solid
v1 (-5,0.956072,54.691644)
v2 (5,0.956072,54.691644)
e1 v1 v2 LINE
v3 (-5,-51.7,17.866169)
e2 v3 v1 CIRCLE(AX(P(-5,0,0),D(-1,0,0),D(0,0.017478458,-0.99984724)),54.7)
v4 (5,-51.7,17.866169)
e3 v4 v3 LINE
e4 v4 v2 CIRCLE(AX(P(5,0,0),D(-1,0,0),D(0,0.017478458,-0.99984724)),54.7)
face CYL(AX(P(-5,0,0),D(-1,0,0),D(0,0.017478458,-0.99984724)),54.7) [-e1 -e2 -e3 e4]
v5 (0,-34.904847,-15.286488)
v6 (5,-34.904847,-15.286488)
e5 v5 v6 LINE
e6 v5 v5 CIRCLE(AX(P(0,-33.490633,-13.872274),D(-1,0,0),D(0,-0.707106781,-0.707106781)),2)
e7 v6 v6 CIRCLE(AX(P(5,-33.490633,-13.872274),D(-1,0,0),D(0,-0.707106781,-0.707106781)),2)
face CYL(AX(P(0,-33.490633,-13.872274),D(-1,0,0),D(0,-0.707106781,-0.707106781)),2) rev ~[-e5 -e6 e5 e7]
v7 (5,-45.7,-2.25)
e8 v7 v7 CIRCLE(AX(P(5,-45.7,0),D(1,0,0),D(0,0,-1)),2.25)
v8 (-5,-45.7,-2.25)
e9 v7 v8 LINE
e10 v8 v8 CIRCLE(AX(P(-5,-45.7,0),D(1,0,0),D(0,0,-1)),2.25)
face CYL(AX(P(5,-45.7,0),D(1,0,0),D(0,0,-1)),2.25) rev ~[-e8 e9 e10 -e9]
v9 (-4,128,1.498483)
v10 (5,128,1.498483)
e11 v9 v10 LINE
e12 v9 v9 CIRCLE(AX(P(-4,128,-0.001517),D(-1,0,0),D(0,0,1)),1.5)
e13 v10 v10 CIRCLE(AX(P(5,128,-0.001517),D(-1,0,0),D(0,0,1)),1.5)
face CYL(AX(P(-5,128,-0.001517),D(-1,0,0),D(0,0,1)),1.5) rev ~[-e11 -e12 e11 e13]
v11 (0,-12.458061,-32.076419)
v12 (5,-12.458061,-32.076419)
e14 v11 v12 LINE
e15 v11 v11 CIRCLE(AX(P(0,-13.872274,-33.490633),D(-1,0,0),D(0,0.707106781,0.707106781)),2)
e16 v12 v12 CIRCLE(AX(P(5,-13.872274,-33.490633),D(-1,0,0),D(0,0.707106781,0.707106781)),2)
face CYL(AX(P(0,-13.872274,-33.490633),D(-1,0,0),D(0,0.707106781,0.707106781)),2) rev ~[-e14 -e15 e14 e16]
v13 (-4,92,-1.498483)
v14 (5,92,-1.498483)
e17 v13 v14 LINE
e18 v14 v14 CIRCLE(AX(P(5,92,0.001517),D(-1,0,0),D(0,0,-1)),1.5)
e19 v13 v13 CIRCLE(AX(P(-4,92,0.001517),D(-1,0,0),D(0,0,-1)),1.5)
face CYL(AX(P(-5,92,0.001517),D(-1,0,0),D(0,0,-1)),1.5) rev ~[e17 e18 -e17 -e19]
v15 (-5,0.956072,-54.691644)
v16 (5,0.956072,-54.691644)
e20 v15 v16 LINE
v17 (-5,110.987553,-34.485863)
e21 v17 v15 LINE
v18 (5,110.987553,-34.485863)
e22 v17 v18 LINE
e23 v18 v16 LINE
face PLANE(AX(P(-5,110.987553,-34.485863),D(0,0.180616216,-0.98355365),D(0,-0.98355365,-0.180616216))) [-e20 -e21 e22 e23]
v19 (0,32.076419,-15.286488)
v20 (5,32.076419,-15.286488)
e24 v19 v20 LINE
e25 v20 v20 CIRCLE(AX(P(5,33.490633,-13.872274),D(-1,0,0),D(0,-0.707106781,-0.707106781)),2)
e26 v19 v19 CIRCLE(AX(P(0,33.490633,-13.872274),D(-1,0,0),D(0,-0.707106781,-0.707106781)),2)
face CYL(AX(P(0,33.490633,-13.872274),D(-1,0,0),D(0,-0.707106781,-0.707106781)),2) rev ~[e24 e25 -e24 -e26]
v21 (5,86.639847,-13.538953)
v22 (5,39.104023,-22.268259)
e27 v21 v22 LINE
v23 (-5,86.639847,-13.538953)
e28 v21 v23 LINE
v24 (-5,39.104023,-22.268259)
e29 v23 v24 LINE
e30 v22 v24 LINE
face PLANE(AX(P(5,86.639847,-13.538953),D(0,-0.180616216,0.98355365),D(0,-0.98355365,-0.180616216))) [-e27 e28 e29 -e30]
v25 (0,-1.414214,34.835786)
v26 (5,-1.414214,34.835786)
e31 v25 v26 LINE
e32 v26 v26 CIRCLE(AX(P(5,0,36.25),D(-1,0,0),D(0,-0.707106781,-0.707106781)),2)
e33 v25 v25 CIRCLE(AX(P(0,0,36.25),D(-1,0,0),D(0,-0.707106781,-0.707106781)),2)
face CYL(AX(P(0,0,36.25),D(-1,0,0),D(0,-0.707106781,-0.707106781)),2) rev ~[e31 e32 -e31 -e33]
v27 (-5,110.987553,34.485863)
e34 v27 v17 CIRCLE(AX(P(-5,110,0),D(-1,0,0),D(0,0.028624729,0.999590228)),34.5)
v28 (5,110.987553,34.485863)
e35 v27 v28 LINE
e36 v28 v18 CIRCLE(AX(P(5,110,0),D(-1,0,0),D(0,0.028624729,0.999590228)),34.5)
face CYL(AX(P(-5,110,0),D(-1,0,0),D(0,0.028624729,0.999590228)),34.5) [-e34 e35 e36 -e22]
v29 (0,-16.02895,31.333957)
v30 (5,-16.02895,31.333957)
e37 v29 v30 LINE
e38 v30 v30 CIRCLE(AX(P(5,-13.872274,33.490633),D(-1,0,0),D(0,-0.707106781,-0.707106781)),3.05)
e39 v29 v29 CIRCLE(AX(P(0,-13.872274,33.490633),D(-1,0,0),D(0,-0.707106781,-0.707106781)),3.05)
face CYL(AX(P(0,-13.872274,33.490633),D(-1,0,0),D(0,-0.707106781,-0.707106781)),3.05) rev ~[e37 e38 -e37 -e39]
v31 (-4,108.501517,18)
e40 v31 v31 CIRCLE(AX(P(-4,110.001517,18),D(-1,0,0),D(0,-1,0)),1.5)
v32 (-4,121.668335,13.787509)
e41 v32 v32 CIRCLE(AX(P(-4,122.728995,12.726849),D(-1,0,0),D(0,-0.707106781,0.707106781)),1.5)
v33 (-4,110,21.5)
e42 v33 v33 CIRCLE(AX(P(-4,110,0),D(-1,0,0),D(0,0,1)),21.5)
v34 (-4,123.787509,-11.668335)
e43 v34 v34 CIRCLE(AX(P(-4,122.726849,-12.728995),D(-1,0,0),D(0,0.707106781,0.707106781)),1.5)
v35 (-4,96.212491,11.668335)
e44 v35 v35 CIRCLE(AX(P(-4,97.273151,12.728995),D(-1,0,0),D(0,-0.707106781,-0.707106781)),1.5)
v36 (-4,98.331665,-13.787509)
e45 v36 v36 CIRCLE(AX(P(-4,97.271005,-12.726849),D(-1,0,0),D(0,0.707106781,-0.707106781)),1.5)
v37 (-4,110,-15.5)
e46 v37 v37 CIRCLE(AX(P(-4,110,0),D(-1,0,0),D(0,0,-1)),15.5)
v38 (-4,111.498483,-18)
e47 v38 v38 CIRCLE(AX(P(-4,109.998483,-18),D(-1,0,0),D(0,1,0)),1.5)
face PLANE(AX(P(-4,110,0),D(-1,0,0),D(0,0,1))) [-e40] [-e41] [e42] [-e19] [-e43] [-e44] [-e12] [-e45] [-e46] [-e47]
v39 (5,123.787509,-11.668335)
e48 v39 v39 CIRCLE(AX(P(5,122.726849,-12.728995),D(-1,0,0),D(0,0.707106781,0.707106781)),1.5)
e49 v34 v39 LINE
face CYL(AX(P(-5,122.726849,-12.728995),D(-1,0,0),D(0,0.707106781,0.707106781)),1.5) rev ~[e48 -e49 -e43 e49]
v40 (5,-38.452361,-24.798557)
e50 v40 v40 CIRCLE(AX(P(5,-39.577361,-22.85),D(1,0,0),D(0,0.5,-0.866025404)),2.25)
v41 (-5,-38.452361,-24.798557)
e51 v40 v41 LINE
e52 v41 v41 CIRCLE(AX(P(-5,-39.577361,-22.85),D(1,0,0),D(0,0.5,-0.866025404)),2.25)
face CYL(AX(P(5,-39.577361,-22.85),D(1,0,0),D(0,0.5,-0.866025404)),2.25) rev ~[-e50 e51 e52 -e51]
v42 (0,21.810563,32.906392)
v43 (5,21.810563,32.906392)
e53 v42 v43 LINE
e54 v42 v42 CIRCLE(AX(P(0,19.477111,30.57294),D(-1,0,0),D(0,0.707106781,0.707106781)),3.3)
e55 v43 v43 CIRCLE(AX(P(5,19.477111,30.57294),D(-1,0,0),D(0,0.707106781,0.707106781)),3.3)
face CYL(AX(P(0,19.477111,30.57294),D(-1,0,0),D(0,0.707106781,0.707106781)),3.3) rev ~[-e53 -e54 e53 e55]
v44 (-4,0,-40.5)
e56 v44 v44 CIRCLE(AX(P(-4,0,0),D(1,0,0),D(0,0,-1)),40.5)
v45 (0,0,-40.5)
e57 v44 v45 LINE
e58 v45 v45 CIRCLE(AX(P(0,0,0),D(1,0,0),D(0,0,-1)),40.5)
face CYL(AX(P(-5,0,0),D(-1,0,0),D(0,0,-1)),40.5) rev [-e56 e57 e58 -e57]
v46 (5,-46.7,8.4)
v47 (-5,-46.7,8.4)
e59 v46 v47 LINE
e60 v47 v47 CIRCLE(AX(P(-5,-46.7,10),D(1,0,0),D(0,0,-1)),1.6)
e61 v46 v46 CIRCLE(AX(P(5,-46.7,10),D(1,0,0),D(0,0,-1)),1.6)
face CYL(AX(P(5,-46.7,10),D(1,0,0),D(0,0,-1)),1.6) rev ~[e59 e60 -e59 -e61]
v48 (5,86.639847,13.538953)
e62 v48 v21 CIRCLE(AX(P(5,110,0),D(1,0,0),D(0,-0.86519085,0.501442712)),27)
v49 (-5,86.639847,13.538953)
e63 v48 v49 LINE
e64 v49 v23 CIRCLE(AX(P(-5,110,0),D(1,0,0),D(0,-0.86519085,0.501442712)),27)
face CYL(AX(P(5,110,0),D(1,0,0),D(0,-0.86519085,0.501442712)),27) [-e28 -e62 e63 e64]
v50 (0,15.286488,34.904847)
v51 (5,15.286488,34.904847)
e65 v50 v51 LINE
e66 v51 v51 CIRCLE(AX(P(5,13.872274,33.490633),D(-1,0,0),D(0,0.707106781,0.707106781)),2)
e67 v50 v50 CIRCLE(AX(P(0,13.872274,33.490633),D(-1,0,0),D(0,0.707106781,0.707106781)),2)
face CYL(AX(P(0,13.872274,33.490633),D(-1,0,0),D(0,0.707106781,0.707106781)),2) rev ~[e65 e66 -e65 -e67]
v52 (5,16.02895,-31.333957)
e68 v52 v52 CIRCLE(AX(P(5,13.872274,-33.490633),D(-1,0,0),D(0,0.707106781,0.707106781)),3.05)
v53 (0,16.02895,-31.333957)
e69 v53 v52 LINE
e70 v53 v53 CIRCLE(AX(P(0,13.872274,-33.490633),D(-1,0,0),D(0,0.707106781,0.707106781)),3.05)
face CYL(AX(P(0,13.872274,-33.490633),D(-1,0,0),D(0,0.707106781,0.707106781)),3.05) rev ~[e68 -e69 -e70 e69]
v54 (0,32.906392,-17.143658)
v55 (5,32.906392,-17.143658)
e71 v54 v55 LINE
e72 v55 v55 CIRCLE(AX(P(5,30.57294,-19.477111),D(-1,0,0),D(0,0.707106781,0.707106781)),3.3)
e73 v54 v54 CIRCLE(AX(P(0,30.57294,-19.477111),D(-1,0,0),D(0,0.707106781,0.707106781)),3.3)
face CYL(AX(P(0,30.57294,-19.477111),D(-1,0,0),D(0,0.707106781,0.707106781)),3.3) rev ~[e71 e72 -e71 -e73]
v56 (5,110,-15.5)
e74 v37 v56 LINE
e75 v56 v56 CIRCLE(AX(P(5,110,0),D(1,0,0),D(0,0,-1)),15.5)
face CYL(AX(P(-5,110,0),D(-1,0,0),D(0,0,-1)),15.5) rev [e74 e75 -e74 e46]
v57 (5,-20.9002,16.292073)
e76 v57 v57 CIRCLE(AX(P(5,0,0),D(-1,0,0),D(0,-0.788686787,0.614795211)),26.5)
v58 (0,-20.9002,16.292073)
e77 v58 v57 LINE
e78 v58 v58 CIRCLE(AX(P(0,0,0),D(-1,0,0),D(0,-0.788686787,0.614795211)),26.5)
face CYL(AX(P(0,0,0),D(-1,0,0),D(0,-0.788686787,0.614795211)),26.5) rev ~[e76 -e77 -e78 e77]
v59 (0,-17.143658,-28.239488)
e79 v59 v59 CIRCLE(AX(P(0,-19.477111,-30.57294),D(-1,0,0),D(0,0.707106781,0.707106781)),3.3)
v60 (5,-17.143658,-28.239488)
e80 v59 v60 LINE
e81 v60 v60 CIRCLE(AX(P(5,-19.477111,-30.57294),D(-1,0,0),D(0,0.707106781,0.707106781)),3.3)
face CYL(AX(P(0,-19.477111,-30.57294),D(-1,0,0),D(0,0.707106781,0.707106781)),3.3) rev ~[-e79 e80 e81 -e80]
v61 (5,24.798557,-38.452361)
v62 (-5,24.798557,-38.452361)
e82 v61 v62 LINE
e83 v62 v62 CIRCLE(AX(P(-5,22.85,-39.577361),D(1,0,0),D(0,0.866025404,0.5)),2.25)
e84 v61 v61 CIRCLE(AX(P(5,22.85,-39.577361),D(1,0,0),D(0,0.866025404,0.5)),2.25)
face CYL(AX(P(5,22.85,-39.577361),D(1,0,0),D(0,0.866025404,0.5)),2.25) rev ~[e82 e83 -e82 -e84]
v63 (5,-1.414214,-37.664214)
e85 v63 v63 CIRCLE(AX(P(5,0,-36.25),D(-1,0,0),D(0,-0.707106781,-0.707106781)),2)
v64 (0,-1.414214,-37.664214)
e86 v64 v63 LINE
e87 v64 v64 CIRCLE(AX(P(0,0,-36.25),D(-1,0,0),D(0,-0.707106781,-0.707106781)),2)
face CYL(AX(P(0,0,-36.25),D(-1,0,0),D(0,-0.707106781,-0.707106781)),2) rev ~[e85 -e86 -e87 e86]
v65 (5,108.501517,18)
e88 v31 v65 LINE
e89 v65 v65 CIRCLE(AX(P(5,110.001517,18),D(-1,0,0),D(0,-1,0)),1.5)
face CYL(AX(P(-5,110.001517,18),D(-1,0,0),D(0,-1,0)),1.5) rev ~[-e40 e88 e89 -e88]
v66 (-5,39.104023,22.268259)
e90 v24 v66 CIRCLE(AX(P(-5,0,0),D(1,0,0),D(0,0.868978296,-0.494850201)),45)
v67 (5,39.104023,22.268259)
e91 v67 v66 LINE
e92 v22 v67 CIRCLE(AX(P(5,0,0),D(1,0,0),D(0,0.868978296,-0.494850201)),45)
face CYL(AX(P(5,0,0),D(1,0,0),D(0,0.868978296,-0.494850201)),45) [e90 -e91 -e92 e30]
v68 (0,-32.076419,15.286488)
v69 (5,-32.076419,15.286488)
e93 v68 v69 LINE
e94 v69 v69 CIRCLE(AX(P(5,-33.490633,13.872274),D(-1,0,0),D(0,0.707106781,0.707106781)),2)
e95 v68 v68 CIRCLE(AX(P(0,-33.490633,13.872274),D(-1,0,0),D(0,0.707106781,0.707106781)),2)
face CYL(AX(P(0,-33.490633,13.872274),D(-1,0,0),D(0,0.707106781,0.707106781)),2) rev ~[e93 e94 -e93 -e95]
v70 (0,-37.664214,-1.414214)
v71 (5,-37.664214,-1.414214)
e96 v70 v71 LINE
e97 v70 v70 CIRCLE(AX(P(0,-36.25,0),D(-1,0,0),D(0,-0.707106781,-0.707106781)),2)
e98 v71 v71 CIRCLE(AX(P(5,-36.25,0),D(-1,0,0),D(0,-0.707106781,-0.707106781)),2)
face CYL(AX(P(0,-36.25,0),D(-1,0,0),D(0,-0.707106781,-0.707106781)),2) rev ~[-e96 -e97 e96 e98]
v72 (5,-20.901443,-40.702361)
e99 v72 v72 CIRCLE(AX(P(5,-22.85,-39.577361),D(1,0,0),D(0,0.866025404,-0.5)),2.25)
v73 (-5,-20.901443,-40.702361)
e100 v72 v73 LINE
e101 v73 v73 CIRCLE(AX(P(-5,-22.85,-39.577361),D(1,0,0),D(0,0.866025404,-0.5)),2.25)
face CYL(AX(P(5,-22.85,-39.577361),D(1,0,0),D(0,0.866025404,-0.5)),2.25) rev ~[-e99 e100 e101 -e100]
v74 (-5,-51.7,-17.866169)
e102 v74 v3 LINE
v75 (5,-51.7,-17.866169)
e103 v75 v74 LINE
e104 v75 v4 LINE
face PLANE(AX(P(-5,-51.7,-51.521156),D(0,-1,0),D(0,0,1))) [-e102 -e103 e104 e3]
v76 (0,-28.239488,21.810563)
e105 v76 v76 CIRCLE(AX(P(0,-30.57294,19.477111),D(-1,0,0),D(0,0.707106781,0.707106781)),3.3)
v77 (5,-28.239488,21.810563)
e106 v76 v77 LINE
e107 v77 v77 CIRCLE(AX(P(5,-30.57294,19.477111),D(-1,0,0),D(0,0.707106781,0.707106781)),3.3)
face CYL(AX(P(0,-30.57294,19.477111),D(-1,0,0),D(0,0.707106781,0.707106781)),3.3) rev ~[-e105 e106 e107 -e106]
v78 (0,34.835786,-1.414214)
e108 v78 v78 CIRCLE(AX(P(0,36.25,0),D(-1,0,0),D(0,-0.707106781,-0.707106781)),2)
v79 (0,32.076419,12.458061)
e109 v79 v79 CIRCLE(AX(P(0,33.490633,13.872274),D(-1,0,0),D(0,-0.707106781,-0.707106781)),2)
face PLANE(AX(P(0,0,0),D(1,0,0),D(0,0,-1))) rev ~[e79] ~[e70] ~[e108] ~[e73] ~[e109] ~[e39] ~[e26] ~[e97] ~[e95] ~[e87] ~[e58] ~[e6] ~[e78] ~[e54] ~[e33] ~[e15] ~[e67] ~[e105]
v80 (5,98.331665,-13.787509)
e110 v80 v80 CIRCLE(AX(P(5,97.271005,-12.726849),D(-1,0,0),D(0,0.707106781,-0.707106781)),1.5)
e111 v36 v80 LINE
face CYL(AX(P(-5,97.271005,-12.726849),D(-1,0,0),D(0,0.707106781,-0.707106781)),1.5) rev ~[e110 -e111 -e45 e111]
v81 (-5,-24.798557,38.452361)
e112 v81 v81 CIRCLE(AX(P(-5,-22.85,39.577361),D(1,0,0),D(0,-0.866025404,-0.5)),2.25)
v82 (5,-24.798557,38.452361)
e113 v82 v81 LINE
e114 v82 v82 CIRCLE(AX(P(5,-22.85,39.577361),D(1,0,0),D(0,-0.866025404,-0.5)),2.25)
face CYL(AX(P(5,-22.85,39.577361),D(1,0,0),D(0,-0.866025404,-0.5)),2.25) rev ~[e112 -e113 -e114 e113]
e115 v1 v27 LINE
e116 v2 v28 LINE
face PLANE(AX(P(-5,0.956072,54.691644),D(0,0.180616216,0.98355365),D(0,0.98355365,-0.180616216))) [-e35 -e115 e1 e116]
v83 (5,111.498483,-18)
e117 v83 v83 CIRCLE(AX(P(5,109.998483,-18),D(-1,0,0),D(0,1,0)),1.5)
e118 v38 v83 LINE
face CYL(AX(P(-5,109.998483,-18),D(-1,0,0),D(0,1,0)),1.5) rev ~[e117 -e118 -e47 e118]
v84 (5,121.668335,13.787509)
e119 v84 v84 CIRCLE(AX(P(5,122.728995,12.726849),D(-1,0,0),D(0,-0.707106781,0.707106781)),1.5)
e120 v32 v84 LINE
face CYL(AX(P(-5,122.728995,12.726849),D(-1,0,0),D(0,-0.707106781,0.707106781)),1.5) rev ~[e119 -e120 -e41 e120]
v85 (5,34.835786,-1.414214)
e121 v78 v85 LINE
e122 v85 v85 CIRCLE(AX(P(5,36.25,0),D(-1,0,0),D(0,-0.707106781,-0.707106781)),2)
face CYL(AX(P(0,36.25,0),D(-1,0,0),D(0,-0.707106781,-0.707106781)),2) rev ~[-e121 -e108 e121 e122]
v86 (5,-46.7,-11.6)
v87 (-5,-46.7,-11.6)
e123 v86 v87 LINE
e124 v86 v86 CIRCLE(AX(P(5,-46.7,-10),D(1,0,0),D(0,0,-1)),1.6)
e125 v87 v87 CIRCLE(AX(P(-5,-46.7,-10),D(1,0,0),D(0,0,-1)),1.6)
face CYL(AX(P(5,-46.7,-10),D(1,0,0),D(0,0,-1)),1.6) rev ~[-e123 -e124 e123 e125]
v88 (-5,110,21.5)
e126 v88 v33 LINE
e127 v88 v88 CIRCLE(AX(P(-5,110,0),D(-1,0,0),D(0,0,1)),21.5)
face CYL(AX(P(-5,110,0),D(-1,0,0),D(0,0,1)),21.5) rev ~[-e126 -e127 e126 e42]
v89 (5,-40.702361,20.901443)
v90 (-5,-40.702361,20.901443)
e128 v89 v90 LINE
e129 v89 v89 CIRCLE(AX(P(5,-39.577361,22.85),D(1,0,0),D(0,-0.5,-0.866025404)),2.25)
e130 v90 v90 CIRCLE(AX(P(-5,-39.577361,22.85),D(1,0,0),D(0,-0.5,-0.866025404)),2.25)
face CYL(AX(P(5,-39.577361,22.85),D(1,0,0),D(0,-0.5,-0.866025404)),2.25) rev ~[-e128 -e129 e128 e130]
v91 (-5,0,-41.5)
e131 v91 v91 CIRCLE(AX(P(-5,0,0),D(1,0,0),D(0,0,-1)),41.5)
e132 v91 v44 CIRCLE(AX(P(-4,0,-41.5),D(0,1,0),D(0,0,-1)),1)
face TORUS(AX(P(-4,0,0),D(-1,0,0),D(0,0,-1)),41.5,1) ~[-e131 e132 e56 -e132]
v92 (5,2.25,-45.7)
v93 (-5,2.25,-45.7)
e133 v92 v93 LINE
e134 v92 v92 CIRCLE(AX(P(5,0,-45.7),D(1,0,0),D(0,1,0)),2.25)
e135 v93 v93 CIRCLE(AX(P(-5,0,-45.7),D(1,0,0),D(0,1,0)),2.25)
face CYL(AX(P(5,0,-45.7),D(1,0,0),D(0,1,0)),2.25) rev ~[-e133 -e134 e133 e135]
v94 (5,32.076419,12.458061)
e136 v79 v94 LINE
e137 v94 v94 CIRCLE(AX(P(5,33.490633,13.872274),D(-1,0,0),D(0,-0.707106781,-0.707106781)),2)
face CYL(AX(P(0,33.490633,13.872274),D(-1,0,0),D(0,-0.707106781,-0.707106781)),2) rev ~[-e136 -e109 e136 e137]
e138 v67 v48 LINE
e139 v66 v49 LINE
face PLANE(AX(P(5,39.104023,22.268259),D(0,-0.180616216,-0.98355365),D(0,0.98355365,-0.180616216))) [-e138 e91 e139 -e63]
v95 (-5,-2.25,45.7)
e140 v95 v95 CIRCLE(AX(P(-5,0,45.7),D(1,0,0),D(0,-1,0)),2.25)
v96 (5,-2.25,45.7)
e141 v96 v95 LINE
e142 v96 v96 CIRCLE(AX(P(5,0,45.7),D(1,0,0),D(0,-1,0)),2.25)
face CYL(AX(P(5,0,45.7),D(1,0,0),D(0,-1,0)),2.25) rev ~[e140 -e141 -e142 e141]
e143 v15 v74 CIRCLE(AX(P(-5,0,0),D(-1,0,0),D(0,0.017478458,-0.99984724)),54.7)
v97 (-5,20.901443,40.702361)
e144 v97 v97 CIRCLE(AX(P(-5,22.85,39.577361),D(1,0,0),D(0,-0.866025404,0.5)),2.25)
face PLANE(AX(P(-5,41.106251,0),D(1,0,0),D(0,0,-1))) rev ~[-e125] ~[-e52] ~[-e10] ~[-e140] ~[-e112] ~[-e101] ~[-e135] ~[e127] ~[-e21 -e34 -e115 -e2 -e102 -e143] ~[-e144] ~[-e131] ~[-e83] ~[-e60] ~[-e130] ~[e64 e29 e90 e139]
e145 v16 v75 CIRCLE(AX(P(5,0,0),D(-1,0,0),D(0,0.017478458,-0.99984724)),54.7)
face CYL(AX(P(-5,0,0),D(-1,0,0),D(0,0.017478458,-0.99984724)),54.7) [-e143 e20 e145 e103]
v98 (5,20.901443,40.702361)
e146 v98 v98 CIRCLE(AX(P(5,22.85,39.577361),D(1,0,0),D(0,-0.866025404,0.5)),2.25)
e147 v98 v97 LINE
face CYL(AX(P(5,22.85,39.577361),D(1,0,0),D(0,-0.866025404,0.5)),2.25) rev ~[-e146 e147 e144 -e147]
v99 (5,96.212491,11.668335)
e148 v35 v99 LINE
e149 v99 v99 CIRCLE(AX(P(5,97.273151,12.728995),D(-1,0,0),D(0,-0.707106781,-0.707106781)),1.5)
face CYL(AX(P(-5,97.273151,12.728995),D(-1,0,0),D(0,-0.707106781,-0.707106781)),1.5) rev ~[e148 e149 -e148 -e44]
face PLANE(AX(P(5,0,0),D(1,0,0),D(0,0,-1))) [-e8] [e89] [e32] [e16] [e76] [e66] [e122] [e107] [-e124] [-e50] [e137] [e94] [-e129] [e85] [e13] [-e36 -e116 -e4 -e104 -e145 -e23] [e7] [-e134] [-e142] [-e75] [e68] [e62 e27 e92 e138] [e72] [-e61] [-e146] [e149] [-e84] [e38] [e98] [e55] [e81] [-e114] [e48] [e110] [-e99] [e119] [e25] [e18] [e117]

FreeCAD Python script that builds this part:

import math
import FreeCAD as App
import Part
import Sketcher


def edges_at(feature, points):
    """Names of the edges that pass closest to the given points."""
    edges = feature.Shape.Edges
    near = lambda p: min(range(len(edges)), key=lambda i: edges[i].distToShape(Part.Vertex(*p))[0])
    return sorted({f"Edge{near(p) + 1}" for p in points})


def add_polygon(sketch, points):
    """Adds a closed chain of lines whose ends are joined by coincident constraints."""
    first, n = sketch.GeometryCount, len(points)
    for a, b in zip(points, points[1:] + points[:1]):
        sketch.addGeometry(Part.LineSegment(App.Vector(*a, 0), App.Vector(*b, 0)), False)
    for i in range(n):
        sketch.addConstraint(Sketcher.Constraint("Coincident", first + i, 2, first + (i + 1) % n, 1))

doc = App.newDocument("Part")
params = doc.addObject("Spreadsheet::Sheet", "Params")
for row, (alias, value) in enumerate([
    ("sketch1_diameter", "31 mm"),
    ("sketch1_diameter2", "4 mm"),
    ("sketch1_diameter3", "53 mm"),
    ("sketch1_diameter4", "6.6 mm"),
    ("sketch1_diameter5", "6.1 mm"),
    ("pad1_length", "5 mm"),
    ("sketch2_diameter", "81 mm"),
    ("sketch2_diameter2", "31 mm"),
    ("sketch2_radius", "67.7 mm"),
    ("sketch2_width", "178 mm"),
    ("pad2_length", "5 mm"),
    ("fillet_radius", "1 mm"),
    ("sketch3_diameter", "3 mm"),
    ("sketch4_diameter", "43 mm"),
    ("pocket2_length", "1 mm"),
    ("sketch5_radius", "67.7 mm"),
    ("sketch5_radius2", "54.7 mm"),
    ("sketch5_radius3", "34.5 mm"),
    ("sketch5_width", "178 mm"),
    ("pocket3_length", "10 mm"),
    ("pocket4_length", "10 mm"),
    ("sketch7_radius", "45 mm"),
    ("sketch7_radius2", "27 mm"),
    ("sketch8_diameter", "3.2 mm"),
    ("pocket6_length", "10 mm"),
    ("sketch9_diameter", "4.5 mm"),
    ("pocket7_length", "10 mm"),
], start=1):
    params.set(f"A{row}", alias)
    params.set(f"B{row}", "=" + value)
    params.setAlias(f"B{row}", alias)

body = doc.addObject("PartDesign::Body", "Body")

sketch1 = body.newObject("Sketcher::SketchObject", "Sketch")
sketch1.AttachmentSupport = (doc.getObject("YZ_Plane"), [""])
sketch1.MapMode = "FlatFace"
sketch1.addGeometry([
    Part.LineSegment(App.Vector(110, 67.7, 0), App.Vector(-68, 67.7, 0)),
    Part.LineSegment(App.Vector(-68, 67.7, 0), App.Vector(-68, -67.7, 0)),
    Part.LineSegment(App.Vector(-68, -67.7, 0), App.Vector(110, -67.7, 0)),
    Part.ArcOfCircle(Part.Circle(App.Vector(110, 0, 0), App.Vector(0, 0, 1), 67.7), math.radians(-90), math.radians(90)),
    Part.Circle(App.Vector(110, 0, 0), App.Vector(0, 0, 1), 15.5),
    Part.Circle(App.Vector(30.6, -19.5, 0), App.Vector(0, 0, 1), 3.3),
    Part.Circle(App.Vector(-30.6, 19.5, 0), App.Vector(0, 0, 1), 3.3),
    Part.Circle(App.Vector(-33.5, 13.9, 0), App.Vector(0, 0, 1), 2),
    Part.Circle(App.Vector(-13.9, 33.5, 0), App.Vector(0, 0, 1), 3),
    Part.Circle(App.Vector(-36.2, 0, 0), App.Vector(0, 0, 1), 2),
    Part.Circle(App.Vector(-33.5, -13.9, 0), App.Vector(0, 0, 1), 2),
    Part.Circle(App.Vector(-19.5, -30.6, 0), App.Vector(0, 0, 1), 3.3),
    Part.Circle(App.Vector(-13.9, -33.5, 0), App.Vector(0, 0, 1), 2),
    Part.Circle(App.Vector(0, 36.2, 0), App.Vector(0, 0, 1), 2),
    Part.Circle(App.Vector(13.9, 33.5, 0), App.Vector(0, 0, 1), 2),
    Part.Circle(App.Vector(19.5, 30.6, 0), App.Vector(0, 0, 1), 3.3),
    Part.Circle(App.Vector(33.5, 13.9, 0), App.Vector(0, 0, 1), 2),
    Part.Circle(App.Vector(0, 0, 0), App.Vector(0, 0, 1), 26.5),
    Part.Circle(App.Vector(0, -36.2, 0), App.Vector(0, 0, 1), 2),
    Part.Circle(App.Vector(13.9, -33.5, 0), App.Vector(0, 0, 1), 3),
    Part.Circle(App.Vector(36.2, 0, 0), App.Vector(0, 0, 1), 2),
    Part.Circle(App.Vector(33.5, -13.9, 0), App.Vector(0, 0, 1), 2),
], False)
sketch1.addConstraint([
    Sketcher.Constraint("Coincident", 0, 2, 1, 1),
    Sketcher.Constraint("Coincident", 1, 2, 2, 1),
    Sketcher.Constraint("Tangent", 2, 2, 3, 1),
    Sketcher.Constraint("Tangent", 3, 2, 0, 1),
    Sketcher.Constraint("Horizontal", 0),
    Sketcher.Constraint("Vertical", 1),
    Sketcher.Constraint("Horizontal", 2),
    Sketcher.Constraint("Coincident", 17, 3, -1, 1),
    Sketcher.Constraint("Coincident", 4, 3, 3, 3),
    Sketcher.Constraint("Equal", 5, 6),
    Sketcher.Constraint("Equal", 7, 9),
    Sketcher.Constraint("Equal", 9, 10),
    Sketcher.Constraint("Equal", 6, 11),
    Sketcher.Constraint("Equal", 10, 12),
    Sketcher.Constraint("Equal", 12, 13),
    Sketcher.Constraint("Equal", 13, 14),
    Sketcher.Constraint("Equal", 11, 15),
    Sketcher.Constraint("Equal", 14, 16),
    Sketcher.Constraint("Equal", 16, 18),
    Sketcher.Constraint("Equal", 8, 19),
    Sketcher.Constraint("Equal", 18, 20),
    Sketcher.Constraint("Equal", 20, 21),
    Sketcher.Constraint("Symmetric", 5, 3, 6, 3, -1, 1),
    Sketcher.Constraint("Symmetric", 12, 3, 14, 3, -1, 1),
    Sketcher.Constraint("Symmetric", 11, 3, 15, 3, -1, 1),
    Sketcher.Constraint("Symmetric", 10, 3, 16, 3, -1, 1),
    Sketcher.Constraint("Symmetric", 13, 3, 18, 3, -1, 1),
    Sketcher.Constraint("Symmetric", 8, 3, 19, 3, -1, 1),
    Sketcher.Constraint("Symmetric", 9, 3, 20, 3, -1, 1),
    Sketcher.Constraint("Symmetric", 7, 3, 21, 3, -1, 1),
    Sketcher.Constraint("Symmetric", 8, 3, 14, 3, -2),
    Sketcher.Constraint("Symmetric", 7, 3, 16, 3, -2),
    Sketcher.Constraint("PointOnObject", 3, 3, -1),
    Sketcher.Constraint("PointOnObject", 9, 3, -1),
    Sketcher.Constraint("PointOnObject", 13, 3, -2),
    Sketcher.Constraint("Diameter", 4, 31.0),
    Sketcher.Constraint("Diameter", 7, 4.0),
    Sketcher.Constraint("Diameter", 17, 53.0),
    Sketcher.Constraint("Diameter", 5, 6.6),
    Sketcher.Constraint("Diameter", 8, 6.1),
    Sketcher.Constraint("Radius", 3, 67.7),
    Sketcher.Constraint("DistanceX", 0, 2, 0, 1, 178.0),
    Sketcher.Constraint("DistanceX", -1, 1, 3, 3, 110.0),
    Sketcher.Constraint("DistanceX", 9, 3, -1, 1, 36.25),
    Sketcher.Constraint("DistanceY", -1, 1, 13, 3, 36.25),
    Sketcher.Constraint("DistanceX", -1, 1, 5, 3, 30.57294),
    Sketcher.Constraint("DistanceY", 5, 3, -1, 1, 19.477111),
    Sketcher.Constraint("DistanceX", 11, 3, -1, 1, 19.477111),
    Sketcher.Constraint("DistanceY", 11, 3, -1, 1, 30.57294),
    Sketcher.Constraint("DistanceX", 7, 3, 8, 3, 19.618359),
    Sketcher.Constraint("DistanceY", 7, 3, 8, 3, 19.618359),
    Sketcher.Constraint("DistanceY", 10, 3, 7, 3, 27.744549),
    Sketcher.Constraint("DistanceX", 8, 3, 14, 3, 27.744549),
])
sketch1.setExpression("Constraints[35]", "Params.sketch1_diameter")
sketch1.setExpression("Constraints[36]", "Params.sketch1_diameter2")
sketch1.setExpression("Constraints[37]", "Params.sketch1_diameter3")
sketch1.setExpression("Constraints[38]", "Params.sketch1_diameter4")
sketch1.setExpression("Constraints[39]", "Params.sketch1_diameter5")
pad1 = body.newObject("PartDesign::Pad", "Pad")
pad1.Profile = sketch1
pad1.setExpression("Length", "Params.pad1_length")

sketch2 = body.newObject("Sketcher::SketchObject", "Sketch001")
sketch2.AttachmentSupport = (doc.getObject("YZ_Plane"), [""])
sketch2.MapMode = "FlatFace"
sketch2.AttachmentOffset = App.Placement(App.Vector(0, 0, -5), App.Rotation())
sketch2.addGeometry([
    Part.LineSegment(App.Vector(110, 68, 0), App.Vector(-68, 68, 0)),
    Part.LineSegment(App.Vector(-68, 68, 0), App.Vector(-68, -68, 0)),
    Part.LineSegment(App.Vector(-68, -68, 0), App.Vector(110, -68, 0)),
    Part.ArcOfCircle(Part.Circle(App.Vector(110, 0, 0), App.Vector(0, 0, 1), 68), math.radians(-90), math.radians(90)),
    Part.Circle(App.Vector(0, 0, 0), App.Vector(0, 0, 1), 40),
    Part.Circle(App.Vector(110, 0, 0), App.Vector(0, 0, 1), 16),
], False)
sketch2.addConstraint([
    Sketcher.Constraint("Coincident", 0, 2, 1, 1),
    Sketcher.Constraint("Coincident", 1, 2, 2, 1),
    Sketcher.Constraint("Tangent", 2, 2, 3, 1),
    Sketcher.Constraint("Tangent", 3, 2, 0, 1),
    Sketcher.Constraint("Horizontal", 0),
    Sketcher.Constraint("Vertical", 1),
    Sketcher.Constraint("Horizontal", 2),
    Sketcher.Constraint("Coincident", 4, 3, -1, 1),
    Sketcher.Constraint("Coincident", 5, 3, 3, 3),
    Sketcher.Constraint("PointOnObject", 3, 3, -1),
    Sketcher.Constraint("Diameter", 4, 81.0),
    Sketcher.Constraint("Diameter", 5, 31.0),
    Sketcher.Constraint("Radius", 3, 67.7),
    Sketcher.Constraint("DistanceX", 0, 2, 0, 1, 178.0),
    Sketcher.Constraint("DistanceX", -1, 1, 3, 3, 110.0),
])
sketch2.setExpression("Constraints[10]", "Params.sketch2_diameter")
sketch2.setExpression("Constraints[11]", "Params.sketch2_diameter2")
sketch2.setExpression("Constraints[12]", "Params.sketch2_radius")
sketch2.setExpression("Constraints[13]", "Params.sketch2_width")
pad2 = body.newObject("PartDesign::Pad", "Pad001")
pad2.Profile = sketch2
pad2.setExpression("Length", "Params.pad2_length")
doc.recompute()

fillet = body.newObject("PartDesign::Fillet", "Fillet")
fillet.Base = (pad2, edges_at(pad2, [(-5, 0, 40.5)]))
fillet.setExpression("Radius", "Params.fillet_radius")

sketch3 = body.newObject("Sketcher::SketchObject", "Sketch002")
sketch3.AttachmentSupport = (doc.getObject("YZ_Plane"), [""])
sketch3.MapMode = "FlatFace"
sketch3.AttachmentOffset = App.Placement(App.Vector(0, 0, -5), App.Rotation())
sketch3.addGeometry(Part.Circle(App.Vector(128, 0, 0), App.Vector(0, 0, 1), 1.5), False)
sketch3.addConstraint([
    Sketcher.Constraint("Diameter", 0, 3.0),
    Sketcher.Constraint("DistanceX", -1, 1, 0, 3, 128.0),
    Sketcher.Constraint("DistanceY", 0, 3, -1, 1, 0.001517),
])
sketch3.setExpression("Constraints[0]", "Params.sketch3_diameter")
pocket1 = body.newObject("PartDesign::Pocket", "Pocket")
pocket1.Profile = sketch3
pocket1.Type = "ThroughAll"
pocket1.Reversed = True
doc.recompute()

datumline = body.newObject("PartDesign::Line", "DatumLine")
datumline.Placement = App.Placement(App.Vector(0, 110, 0), App.Rotation(App.Vector(0, 0, 1), App.Vector(1, 0, 0)))
polarpattern = body.newObject("PartDesign::PolarPattern", "PolarPattern")
polarpattern.Originals = [pocket1]
polarpattern.Axis = (datumline, [""])
polarpattern.Angle = 360
polarpattern.Occurrences = 8
body.Tip = polarpattern

sketch4 = body.newObject("Sketcher::SketchObject", "Sketch003")
sketch4.AttachmentSupport = (doc.getObject("YZ_Plane"), [""])
sketch4.MapMode = "FlatFace"
sketch4.AttachmentOffset = App.Placement(App.Vector(0, 0, -5), App.Rotation())
sketch4.addGeometry(Part.Circle(App.Vector(110, 0, 0), App.Vector(0, 0, 1), 22), False)
sketch4.addConstraint([
    Sketcher.Constraint("PointOnObject", 0, 3, -1),
    Sketcher.Constraint("Diameter", 0, 43.0),
    Sketcher.Constraint("DistanceX", -1, 1, 0, 3, 110.0),
])
sketch4.setExpression("Constraints[1]", "Params.sketch4_diameter")
pocket2 = body.newObject("PartDesign::Pocket", "Pocket001")
pocket2.Profile = sketch4
pocket2.setExpression("Length", "Params.pocket2_length")
pocket2.Reversed = True

sketch5 = body.newObject("Sketcher::SketchObject", "Sketch004")
sketch5.AttachmentSupport = (doc.getObject("YZ_Plane"), [""])
sketch5.MapMode = "FlatFace"
sketch5.AttachmentOffset = App.Placement(App.Vector(0, 0, -5), App.Rotation())
sketch5.addGeometry([
    Part.ArcOfCircle(Part.Circle(App.Vector(110, 0, 0), App.Vector(0, 0, 1), 68), math.radians(-90), math.radians(90)),
    Part.LineSegment(App.Vector(110, -68, 0), App.Vector(-68, -68, 0)),
    Part.LineSegment(App.Vector(-68, -68, 0), App.Vector(-68, 68, 0)),
    Part.LineSegment(App.Vector(-68, 68, 0), App.Vector(110, 68, 0)),
    Part.ArcOfCircle(Part.Circle(App.Vector(0, 0, 0), App.Vector(0, 0, 1), 55), math.radians(89), math.radians(271)),
    Part.LineSegment(App.Vector(1, -55, 0), App.Vector(111, -34, 0)),
    Part.ArcOfCircle(Part.Circle(App.Vector(110, 0, 0), App.Vector(0, 0, 1), 34), math.radians(-88), math.radians(88)),
    Part.LineSegment(App.Vector(111, 34, 0), App.Vector(1, 55, 0)),
], False)
sketch5.addConstraint([
    Sketcher.Constraint("Tangent", 0, 1, 1, 1),
    Sketcher.Constraint("Coincident", 1, 2, 2, 1),
    Sketcher.Constraint("Coincident", 2, 2, 3, 1),
    Sketcher.Constraint("Tangent", 3, 2, 0, 2),
    Sketcher.Constraint("Coincident", 4, 2, 5, 1),
    Sketcher.Constraint("Coincident", 5, 2, 6, 1),
    Sketcher.Constraint("Coincident", 6, 2, 7, 1),
    Sketcher.Constraint("Coincident", 7, 2, 4, 1),
    Sketcher.Constraint("Horizontal", 1),
    Sketcher.Constraint("Vertical", 2),
    Sketcher.Constraint("Horizontal", 3),
    Sketcher.Constraint("Coincident", 4, 3, -1, 1),
    Sketcher.Constraint("Coincident", 6, 3, 0, 3),
    Sketcher.Constraint("Symmetric", 5, 2, 6, 2, -1),
    Sketcher.Constraint("Vertical", 4, 2, 7, 2),
    Sketcher.Constraint("Radius", 0, 67.7),
    Sketcher.Constraint("Radius", 4, 54.7),
    Sketcher.Constraint("Radius", 6, 34.5),
    Sketcher.Constraint("DistanceX", 1, 2, 1, 1, 178.0),
    Sketcher.Constraint("DistanceX", -1, 1, 0, 3, 110.0),
    Sketcher.Constraint("DistanceX", -1, 1, 4, 2, 0.956072),
    Sketcher.Constraint("DistanceX", 4, 2, 5, 2, 110.031482),
])
sketch5.setExpression("Constraints[15]", "Params.sketch5_radius")
sketch5.setExpression("Constraints[16]", "Params.sketch5_radius2")
sketch5.setExpression("Constraints[17]", "Params.sketch5_radius3")
sketch5.setExpression("Constraints[18]", "Params.sketch5_width")
pocket3 = body.newObject("PartDesign::Pocket", "Pocket002")
pocket3.Profile = sketch5
pocket3.setExpression("Length", "Params.pocket3_length")
pocket3.Reversed = True

sketch6 = body.newObject("Sketcher::SketchObject", "Sketch005")
sketch6.AttachmentSupport = (doc.getObject("YZ_Plane"), [""])
sketch6.MapMode = "FlatFace"
sketch6.AttachmentOffset = App.Placement(App.Vector(0, 0, -5), App.Rotation())
add_polygon(sketch6, [(-52, -52), (-62, -52), (-62, 54), (-52, 54)])
sketch6.addConstraint([
    Sketcher.Constraint("Horizontal", 0),
    Sketcher.Constraint("Vertical", 1),
    Sketcher.Constraint("Horizontal", 2),
    Sketcher.Constraint("Vertical", 3),
    Sketcher.Constraint("DistanceX", 2, 2, -1, 1, 51.7),
    Sketcher.Constraint("DistanceX", 0, 2, 0, 1, 10.065807),
    Sketcher.Constraint("DistanceY", 1, 1, 1, 2, 105.253325),
    Sketcher.Constraint("DistanceY", -1, 1, 1, 2, 53.732168),
])
pocket4 = body.newObject("PartDesign::Pocket", "Pocket003")
pocket4.Profile = sketch6
pocket4.setExpression("Length", "Params.pocket4_length")
pocket4.Reversed = True

sketch7 = body.newObject("Sketcher::SketchObject", "Sketch006")
sketch7.AttachmentSupport = (doc.getObject("YZ_Plane"), [""])
sketch7.MapMode = "FlatFace"
sketch7.AttachmentOffset = App.Placement(App.Vector(0, 0, 5), App.Rotation())
sketch7.addGeometry([
    Part.ArcOfCircle(Part.Circle(App.Vector(0, 0, 0), App.Vector(0, 0, 1), 45), math.radians(-30), math.radians(30)),
    Part.LineSegment(App.Vector(39, -22, 0), App.Vector(87, -14, 0)),
    Part.ArcOfCircle(Part.Circle(App.Vector(110, 0, 0), App.Vector(0, 0, 1), 27), math.radians(150), math.radians(210)),
    Part.LineSegment(App.Vector(87, 14, 0), App.Vector(39, 22, 0)),
], False)
sketch7.addConstraint([
    Sketcher.Constraint("Coincident", 0, 1, 1, 1),
    Sketcher.Constraint("Coincident", 1, 2, 2, 2),
    Sketcher.Constraint("Coincident", 2, 1, 3, 1),
    Sketcher.Constraint("Coincident", 3, 2, 0, 2),
    Sketcher.Constraint("Coincident", 0, 3, -1, 1),
    Sketcher.Constraint("Symmetric", 1, 2, 2, 1, -1),
    Sketcher.Constraint("Vertical", 0, 1, 3, 2),
    Sketcher.Constraint("Radius", 0, 45.0),
    Sketcher.Constraint("Radius", 2, 27.0),
    Sketcher.Constraint("DistanceX", -1, 1, 2, 3, 110.0),
    Sketcher.Constraint("DistanceY", 0, 1, -1, 1, 22.268259),
    Sketcher.Constraint("Distance", 1, 48.330687),
])
sketch7.setExpression("Constraints[7]", "Params.sketch7_radius")
sketch7.setExpression("Constraints[8]", "Params.sketch7_radius2")
pocket5 = body.newObject("PartDesign::Pocket", "Pocket004")
pocket5.Profile = sketch7
pocket5.Type = "ThroughAll"

sketch8 = body.newObject("Sketcher::SketchObject", "Sketch007")
sketch8.AttachmentSupport = (doc.getObject("YZ_Plane"), [""])
sketch8.MapMode = "FlatFace"
sketch8.AttachmentOffset = App.Placement(App.Vector(0, 0, 5), App.Rotation())
sketch8.addGeometry([
    Part.Circle(App.Vector(-46.7, 10, 0), App.Vector(0, 0, 1), 1.6),
    Part.Circle(App.Vector(-46.7, -10, 0), App.Vector(0, 0, 1), 1.6),
], False)
sketch8.addConstraint([
    Sketcher.Constraint("Equal", 0, 1),
    Sketcher.Constraint("Symmetric", 0, 3, 1, 3, -1),
    Sketcher.Constraint("Diameter", 0, 3.2),
    Sketcher.Constraint("DistanceY", -1, 1, 0, 3, 10.0),
    Sketcher.Constraint("DistanceX", 0, 3, -1, 1, 46.7),
])
sketch8.setExpression("Constraints[2]", "Params.sketch8_diameter")
pocket6 = body.newObject("PartDesign::Pocket", "Pocket005")
pocket6.Profile = sketch8
pocket6.setExpression("Length", "Params.pocket6_length")

sketch9 = body.newObject("Sketcher::SketchObject", "Sketch008")
sketch9.AttachmentSupport = (doc.getObject("YZ_Plane"), [""])
sketch9.MapMode = "FlatFace"
sketch9.AttachmentOffset = App.Placement(App.Vector(0, 0, 5), App.Rotation())
sketch9.addGeometry(Part.Circle(App.Vector(-45.7, 0, 0), App.Vector(0, 0, 1), 2.2), False)
sketch9.addConstraint([
    Sketcher.Constraint("PointOnObject", 0, 3, -1),
    Sketcher.Constraint("Diameter", 0, 4.5),
    Sketcher.Constraint("DistanceX", 0, 3, -1, 1, 45.7),
])
sketch9.setExpression("Constraints[1]", "Params.sketch9_diameter")
pocket7 = body.newObject("PartDesign::Pocket", "Pocket006")
pocket7.Profile = sketch9
pocket7.setExpression("Length", "Params.pocket7_length")
doc.recompute()

polarpattern2 = body.newObject("PartDesign::PolarPattern", "PolarPattern001")
polarpattern2.Originals = [pocket7]
polarpattern2.Axis = (doc.getObject("X_Axis"), [""])
polarpattern2.Angle = 120
polarpattern2.Occurrences = 5
polarpattern2.Reversed = True
body.Tip = polarpattern2
doc.recompute()

polarpattern3 = body.newObject("PartDesign::PolarPattern", "PolarPattern002")
polarpattern3.Originals = [pocket7]
polarpattern3.Axis = (doc.getObject("X_Axis"), [""])
polarpattern3.Angle = 120
polarpattern3.Occurrences = 5
body.Tip = polarpattern3

doc.recompute()
